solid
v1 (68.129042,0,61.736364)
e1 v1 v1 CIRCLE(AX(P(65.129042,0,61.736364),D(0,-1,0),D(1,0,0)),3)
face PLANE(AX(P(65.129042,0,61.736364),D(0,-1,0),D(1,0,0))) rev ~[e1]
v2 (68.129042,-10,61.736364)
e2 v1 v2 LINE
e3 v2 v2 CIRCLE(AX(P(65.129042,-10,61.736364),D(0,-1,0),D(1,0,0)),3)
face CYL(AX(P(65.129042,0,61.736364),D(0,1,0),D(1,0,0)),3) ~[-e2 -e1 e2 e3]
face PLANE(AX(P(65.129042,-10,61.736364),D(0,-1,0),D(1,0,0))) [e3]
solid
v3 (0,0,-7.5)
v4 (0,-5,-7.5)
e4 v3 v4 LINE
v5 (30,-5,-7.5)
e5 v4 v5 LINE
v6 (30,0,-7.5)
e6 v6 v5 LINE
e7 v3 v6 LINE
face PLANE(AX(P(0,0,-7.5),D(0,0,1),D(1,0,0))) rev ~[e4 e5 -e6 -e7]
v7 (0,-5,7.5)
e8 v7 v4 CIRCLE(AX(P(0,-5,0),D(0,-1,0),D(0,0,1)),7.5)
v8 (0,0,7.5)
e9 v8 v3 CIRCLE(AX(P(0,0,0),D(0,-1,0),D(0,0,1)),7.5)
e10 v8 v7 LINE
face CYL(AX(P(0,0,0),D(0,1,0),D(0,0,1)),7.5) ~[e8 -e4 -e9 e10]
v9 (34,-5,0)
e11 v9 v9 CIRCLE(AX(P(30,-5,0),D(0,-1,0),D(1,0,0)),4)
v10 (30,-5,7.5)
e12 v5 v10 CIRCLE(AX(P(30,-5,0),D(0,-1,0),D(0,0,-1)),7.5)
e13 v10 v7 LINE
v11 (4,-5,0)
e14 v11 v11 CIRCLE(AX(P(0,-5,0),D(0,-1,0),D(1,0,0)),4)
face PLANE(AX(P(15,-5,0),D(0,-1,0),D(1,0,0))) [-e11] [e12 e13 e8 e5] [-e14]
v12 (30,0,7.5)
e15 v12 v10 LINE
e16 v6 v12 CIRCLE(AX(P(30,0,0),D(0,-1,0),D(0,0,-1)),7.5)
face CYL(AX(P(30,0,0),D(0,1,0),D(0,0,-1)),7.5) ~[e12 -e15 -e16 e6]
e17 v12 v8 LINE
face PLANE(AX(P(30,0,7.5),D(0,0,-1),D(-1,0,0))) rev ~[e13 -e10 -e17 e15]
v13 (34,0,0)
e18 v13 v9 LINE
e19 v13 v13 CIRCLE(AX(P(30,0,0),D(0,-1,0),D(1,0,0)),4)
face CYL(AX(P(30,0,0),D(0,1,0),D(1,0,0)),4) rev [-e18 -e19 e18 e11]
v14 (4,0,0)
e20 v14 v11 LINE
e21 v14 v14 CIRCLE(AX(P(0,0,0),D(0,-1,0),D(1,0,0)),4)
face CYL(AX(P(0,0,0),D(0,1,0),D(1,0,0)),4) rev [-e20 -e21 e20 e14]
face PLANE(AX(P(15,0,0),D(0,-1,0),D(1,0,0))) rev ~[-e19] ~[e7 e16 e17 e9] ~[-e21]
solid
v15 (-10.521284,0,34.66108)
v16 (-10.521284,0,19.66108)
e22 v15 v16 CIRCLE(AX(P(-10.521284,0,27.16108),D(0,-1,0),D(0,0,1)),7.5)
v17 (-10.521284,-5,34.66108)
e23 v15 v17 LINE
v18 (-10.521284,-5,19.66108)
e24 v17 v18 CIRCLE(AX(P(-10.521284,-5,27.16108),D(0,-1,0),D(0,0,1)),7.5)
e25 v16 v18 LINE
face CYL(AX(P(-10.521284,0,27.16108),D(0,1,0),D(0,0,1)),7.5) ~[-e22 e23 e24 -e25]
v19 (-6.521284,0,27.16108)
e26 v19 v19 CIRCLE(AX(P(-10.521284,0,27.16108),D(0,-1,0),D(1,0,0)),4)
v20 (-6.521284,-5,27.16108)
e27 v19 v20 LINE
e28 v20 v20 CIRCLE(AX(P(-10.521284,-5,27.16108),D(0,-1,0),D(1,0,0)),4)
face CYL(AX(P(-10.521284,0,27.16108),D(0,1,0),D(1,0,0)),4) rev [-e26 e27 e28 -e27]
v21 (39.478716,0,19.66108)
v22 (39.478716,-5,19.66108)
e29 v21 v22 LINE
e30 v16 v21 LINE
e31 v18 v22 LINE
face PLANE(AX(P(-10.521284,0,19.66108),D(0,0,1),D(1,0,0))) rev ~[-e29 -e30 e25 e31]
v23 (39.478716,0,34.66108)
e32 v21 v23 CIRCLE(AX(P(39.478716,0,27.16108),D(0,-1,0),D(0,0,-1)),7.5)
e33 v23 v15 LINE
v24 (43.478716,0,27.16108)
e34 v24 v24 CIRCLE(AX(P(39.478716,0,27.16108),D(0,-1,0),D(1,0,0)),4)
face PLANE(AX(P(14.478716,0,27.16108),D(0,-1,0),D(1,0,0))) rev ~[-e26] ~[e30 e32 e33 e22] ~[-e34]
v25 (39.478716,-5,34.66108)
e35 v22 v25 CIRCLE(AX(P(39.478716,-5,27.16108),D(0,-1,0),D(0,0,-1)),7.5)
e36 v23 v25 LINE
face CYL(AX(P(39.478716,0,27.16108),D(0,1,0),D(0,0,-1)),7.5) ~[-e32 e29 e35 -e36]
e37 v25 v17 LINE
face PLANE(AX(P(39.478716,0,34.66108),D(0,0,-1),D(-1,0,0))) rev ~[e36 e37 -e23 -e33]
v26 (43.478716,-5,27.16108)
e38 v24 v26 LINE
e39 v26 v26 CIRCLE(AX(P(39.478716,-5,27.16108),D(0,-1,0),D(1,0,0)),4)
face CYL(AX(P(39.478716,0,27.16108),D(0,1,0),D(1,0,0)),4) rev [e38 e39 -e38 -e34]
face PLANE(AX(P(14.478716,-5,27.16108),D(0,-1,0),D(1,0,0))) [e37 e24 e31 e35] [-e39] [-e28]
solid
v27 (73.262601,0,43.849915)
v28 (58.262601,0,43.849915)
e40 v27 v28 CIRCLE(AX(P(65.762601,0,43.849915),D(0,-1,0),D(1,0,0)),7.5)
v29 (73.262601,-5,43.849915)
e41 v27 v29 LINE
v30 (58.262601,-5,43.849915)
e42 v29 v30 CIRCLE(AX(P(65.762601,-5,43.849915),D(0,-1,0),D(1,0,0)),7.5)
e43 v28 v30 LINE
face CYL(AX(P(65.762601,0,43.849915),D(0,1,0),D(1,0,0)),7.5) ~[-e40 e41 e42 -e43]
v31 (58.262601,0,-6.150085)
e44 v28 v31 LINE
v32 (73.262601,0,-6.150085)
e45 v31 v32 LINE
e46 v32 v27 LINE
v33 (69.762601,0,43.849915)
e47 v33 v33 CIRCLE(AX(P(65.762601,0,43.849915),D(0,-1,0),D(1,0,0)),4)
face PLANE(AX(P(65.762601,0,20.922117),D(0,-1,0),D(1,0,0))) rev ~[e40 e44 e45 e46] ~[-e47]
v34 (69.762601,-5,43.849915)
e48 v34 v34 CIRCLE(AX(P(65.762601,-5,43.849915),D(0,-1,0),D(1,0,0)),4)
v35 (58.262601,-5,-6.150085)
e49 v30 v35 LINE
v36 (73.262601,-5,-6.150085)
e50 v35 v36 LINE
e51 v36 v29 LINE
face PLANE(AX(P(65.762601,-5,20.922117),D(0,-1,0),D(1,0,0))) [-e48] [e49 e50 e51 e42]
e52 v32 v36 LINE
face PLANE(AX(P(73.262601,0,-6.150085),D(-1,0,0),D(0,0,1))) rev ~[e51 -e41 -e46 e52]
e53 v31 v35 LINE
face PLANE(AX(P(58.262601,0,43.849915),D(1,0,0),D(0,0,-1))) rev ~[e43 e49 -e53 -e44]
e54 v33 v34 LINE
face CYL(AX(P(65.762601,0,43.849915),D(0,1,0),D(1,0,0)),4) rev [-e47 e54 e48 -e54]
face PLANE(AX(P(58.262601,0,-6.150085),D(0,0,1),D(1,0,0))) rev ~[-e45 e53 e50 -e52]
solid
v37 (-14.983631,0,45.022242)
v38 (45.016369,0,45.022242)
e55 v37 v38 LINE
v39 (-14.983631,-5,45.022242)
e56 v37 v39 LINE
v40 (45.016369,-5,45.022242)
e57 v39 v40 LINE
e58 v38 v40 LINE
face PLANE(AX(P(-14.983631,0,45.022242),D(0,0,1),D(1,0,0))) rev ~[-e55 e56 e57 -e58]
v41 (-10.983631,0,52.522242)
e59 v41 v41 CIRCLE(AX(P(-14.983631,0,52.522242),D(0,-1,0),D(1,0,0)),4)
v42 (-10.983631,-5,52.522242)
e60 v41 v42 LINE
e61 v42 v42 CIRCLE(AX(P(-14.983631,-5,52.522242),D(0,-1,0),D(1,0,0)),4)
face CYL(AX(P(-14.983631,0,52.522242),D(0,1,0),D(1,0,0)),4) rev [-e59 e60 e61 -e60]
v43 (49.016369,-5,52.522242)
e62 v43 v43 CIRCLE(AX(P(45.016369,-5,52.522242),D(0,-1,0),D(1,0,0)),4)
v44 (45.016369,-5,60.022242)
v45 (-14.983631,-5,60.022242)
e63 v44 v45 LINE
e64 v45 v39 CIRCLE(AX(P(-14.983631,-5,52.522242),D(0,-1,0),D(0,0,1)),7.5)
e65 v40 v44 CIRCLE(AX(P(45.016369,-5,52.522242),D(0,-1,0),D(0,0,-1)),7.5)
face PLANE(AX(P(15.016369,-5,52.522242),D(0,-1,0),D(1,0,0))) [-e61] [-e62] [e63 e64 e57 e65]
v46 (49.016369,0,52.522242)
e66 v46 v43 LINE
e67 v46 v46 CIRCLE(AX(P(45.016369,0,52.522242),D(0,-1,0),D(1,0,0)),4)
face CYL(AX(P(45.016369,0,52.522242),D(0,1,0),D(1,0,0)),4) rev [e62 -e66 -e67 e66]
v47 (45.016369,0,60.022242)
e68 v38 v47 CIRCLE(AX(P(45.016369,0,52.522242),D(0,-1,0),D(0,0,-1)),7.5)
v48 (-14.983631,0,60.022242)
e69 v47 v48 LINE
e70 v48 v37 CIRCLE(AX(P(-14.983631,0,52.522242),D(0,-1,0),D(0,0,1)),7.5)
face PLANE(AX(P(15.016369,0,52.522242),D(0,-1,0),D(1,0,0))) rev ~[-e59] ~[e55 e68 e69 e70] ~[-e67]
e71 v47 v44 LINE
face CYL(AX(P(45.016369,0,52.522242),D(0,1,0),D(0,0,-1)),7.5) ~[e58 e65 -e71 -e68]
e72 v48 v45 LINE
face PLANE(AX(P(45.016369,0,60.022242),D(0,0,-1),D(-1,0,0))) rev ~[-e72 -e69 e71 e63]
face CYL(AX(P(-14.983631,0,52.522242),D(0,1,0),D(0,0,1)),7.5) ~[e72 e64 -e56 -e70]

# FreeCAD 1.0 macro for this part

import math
import FreeCAD as App
import Part
import Sketcher
Q = App.Units.Quantity

doc = App.newDocument("Part")
body = doc.addObject("PartDesign::Body", "Body")

# Sketch on XZ plane
sketch1 = doc.addObject("Sketcher::SketchObject", "Sketch")
body.addObject(sketch1)
sketch1.AttachmentSupport = (doc.XZ_Plane, [""])
sketch1.MapMode = "FlatFace"
sketch1.addGeometry([
    Part.LineSegment(App.Vector(30, 7.5, 0), App.Vector(0, 7.5, 0)),  # 0
    Part.ArcOfCircle(Part.Circle(App.Vector(0, 0, 0), App.Vector(0, 0, 1), 7.5), math.radians(90), math.radians(270)),  # 1
    Part.LineSegment(App.Vector(0, -7.5, 0), App.Vector(30, -7.5, 0)),  # 2
    Part.ArcOfCircle(Part.Circle(App.Vector(30, 0, 0), App.Vector(0, 0, 1), 7.5), math.radians(-90), math.radians(90)),  # 3
    Part.Circle(App.Vector(0, 0, 0), App.Vector(0, 0, 1), 4),  # 4
    Part.Circle(App.Vector(30, 0, 0), App.Vector(0, 0, 1), 4),  # 5
], False)
sketch1.addConstraint([
    Sketcher.Constraint("Tangent", 0, 2, 1, 1),
    Sketcher.Constraint("Tangent", 1, 2, 2, 1),
    Sketcher.Constraint("Tangent", 2, 2, 3, 1),
    Sketcher.Constraint("Tangent", 3, 2, 0, 1),
    Sketcher.Constraint("Horizontal", 0),
    Sketcher.Constraint("Horizontal", 2),
    Sketcher.Constraint("Coincident", 1, 3, -1, 1),
    Sketcher.Constraint("Coincident", 4, 3, -1, 1),
    Sketcher.Constraint("Coincident", 5, 3, 3, 3),
    Sketcher.Constraint("Equal", 4, 5),
    Sketcher.Constraint("Diameter", 4, Q("8 mm")),
    Sketcher.Constraint("Radius", 1, Q("7.5 mm")),
    Sketcher.Constraint("DistanceX", 0, 2, 0, 1, Q("30 mm")),
])
pad1 = doc.addObject("PartDesign::Pad", "Pad")
body.addObject(pad1)
pad1.Profile = sketch1
pad1.Length = 5
body2 = doc.addObject("PartDesign::Body", "Body001")

# Sketch on XZ plane
sketch2 = doc.addObject("Sketcher::SketchObject", "Sketch001")
body2.addObject(sketch2)
sketch2.AttachmentSupport = (doc.getObject("XZ_Plane001"), [""])
sketch2.MapMode = "FlatFace"
sketch2.addGeometry([
    Part.LineSegment(App.Vector(39.478716, 34.66108, 0), App.Vector(-10.521284, 34.66108, 0)),  # 0
    Part.ArcOfCircle(Part.Circle(App.Vector(-10.521284, 27.16108, 0), App.Vector(0, 0, 1), 7.5), math.radians(90), math.radians(270)),  # 1
    Part.LineSegment(App.Vector(-10.521284, 19.66108, 0), App.Vector(39.478716, 19.66108, 0)),  # 2
    Part.ArcOfCircle(Part.Circle(App.Vector(39.478716, 27.16108, 0), App.Vector(0, 0, 1), 7.5), math.radians(-90), math.radians(90)),  # 3
    Part.Circle(App.Vector(-10.521284, 27.16108, 0), App.Vector(0, 0, 1), 4),  # 4
    Part.Circle(App.Vector(39.478716, 27.16108, 0), App.Vector(0, 0, 1), 4),  # 5
], False)
sketch2.addConstraint([
    Sketcher.Constraint("Tangent", 0, 2, 1, 1),
    Sketcher.Constraint("Tangent", 1, 2, 2, 1),
    Sketcher.Constraint("Tangent", 2, 2, 3, 1),
    Sketcher.Constraint("Tangent", 3, 2, 0, 1),
    Sketcher.Constraint("Horizontal", 0),
    Sketcher.Constraint("Horizontal", 2),
    Sketcher.Constraint("Coincident", 4, 3, 1, 3),
    Sketcher.Constraint("Coincident", 5, 3, 3, 3),
    Sketcher.Constraint("Equal", 4, 5),
    Sketcher.Constraint("Diameter", 4, Q("8 mm")),
    Sketcher.Constraint("Radius", 1, Q("7.5 mm")),
    Sketcher.Constraint("DistanceX", 0, 2, 0, 1, Q("50 mm")),
    Sketcher.Constraint("DistanceY", -1, 1, 1, 3, Q("27.16108 mm")),
    Sketcher.Constraint("DistanceX", 1, 3, -1, 1, Q("10.521284 mm")),
])
pad2 = doc.addObject("PartDesign::Pad", "Pad001")
body2.addObject(pad2)
pad2.Profile = sketch2
pad2.Length = 5
body3 = doc.addObject("PartDesign::Body", "Body002")

# Sketch on XZ plane
sketch3 = doc.addObject("Sketcher::SketchObject", "Sketch002")
body3.addObject(sketch3)
sketch3.AttachmentSupport = (doc.getObject("XZ_Plane002"), [""])
sketch3.MapMode = "FlatFace"
sketch3.addGeometry([
    Part.LineSegment(App.Vector(45.016369, 60.022242, 0), App.Vector(-14.983631, 60.022242, 0)),  # 0
    Part.ArcOfCircle(Part.Circle(App.Vector(-14.983631, 52.522242, 0), App.Vector(0, 0, 1), 7.5), math.radians(90), math.radians(270)),  # 1
    Part.LineSegment(App.Vector(-14.983631, 45.022242, 0), App.Vector(45.016369, 45.022242, 0)),  # 2
    Part.ArcOfCircle(Part.Circle(App.Vector(45.016369, 52.522242, 0), App.Vector(0, 0, 1), 7.5), math.radians(-90), math.radians(90)),  # 3
    Part.Circle(App.Vector(-14.983631, 52.522242, 0), App.Vector(0, 0, 1), 4),  # 4
    Part.Circle(App.Vector(45.016369, 52.522242, 0), App.Vector(0, 0, 1), 4),  # 5
], False)
sketch3.addConstraint([
    Sketcher.Constraint("Tangent", 0, 2, 1, 1),
    Sketcher.Constraint("Tangent", 1, 2, 2, 1),
    Sketcher.Constraint("Tangent", 2, 2, 3, 1),
    Sketcher.Constraint("Tangent", 3, 2, 0, 1),
    Sketcher.Constraint("Horizontal", 0),
    Sketcher.Constraint("Horizontal", 2),
    Sketcher.Constraint("Coincident", 4, 3, 1, 3),
    Sketcher.Constraint("Coincident", 5, 3, 3, 3),
    Sketcher.Constraint("Equal", 4, 5),
    Sketcher.Constraint("Diameter", 4, Q("8 mm")),
    Sketcher.Constraint("Radius", 1, Q("7.5 mm")),
    Sketcher.Constraint("DistanceX", 0, 2, 0, 1, Q("60 mm")),
    Sketcher.Constraint("DistanceX", 1, 3, -1, 1, Q("14.983631 mm")),
    Sketcher.Constraint("DistanceY", -1, 1, 1, 3, Q("52.522242 mm")),
])
pad3 = doc.addObject("PartDesign::Pad", "Pad002")
body3.addObject(pad3)
pad3.Profile = sketch3
pad3.Length = 5
body4 = doc.addObject("PartDesign::Body", "Body003")

# Sketch on XZ plane
sketch4 = doc.addObject("Sketcher::SketchObject", "Sketch003")
body4.addObject(sketch4)
sketch4.AttachmentSupport = (doc.getObject("XZ_Plane003"), [""])
sketch4.MapMode = "FlatFace"
sketch4.addGeometry([
    Part.LineSegment(App.Vector(58.262601, 43.849915, 0), App.Vector(58.262601, -6.150085, 0)),  # 0
    Part.LineSegment(App.Vector(58.262601, -6.150085, 0), App.Vector(73.262601, -6.150085, 0)),  # 1
    Part.LineSegment(App.Vector(73.262601, -6.150085, 0), App.Vector(73.262601, 43.849915, 0)),  # 2
    Part.ArcOfCircle(Part.Circle(App.Vector(65.762601, 43.849915, 0), App.Vector(0, 0, 1), 7.5), math.radians(0), math.radians(180)),  # 3
    Part.Circle(App.Vector(65.762601, 43.849915, 0), App.Vector(0, 0, 1), 4),  # 4
], False)
sketch4.addConstraint([
    Sketcher.Constraint("Coincident", 0, 2, 1, 1),
    Sketcher.Constraint("Coincident", 1, 2, 2, 1),
    Sketcher.Constraint("Tangent", 2, 2, 3, 1),
    Sketcher.Constraint("Tangent", 3, 2, 0, 1),
    Sketcher.Constraint("Vertical", 0),
    Sketcher.Constraint("Horizontal", 1),
    Sketcher.Constraint("Vertical", 2),
    Sketcher.Constraint("Coincident", 4, 3, 3, 3),
    Sketcher.Constraint("Diameter", 4, Q("8 mm")),
    Sketcher.Constraint("Radius", 3, Q("7.5 mm")),
    Sketcher.Constraint("DistanceY", 0, 2, 0, 1, Q("50 mm")),
    Sketcher.Constraint("DistanceX", -1, 1, 3, 3, Q("65.762601 mm")),
    Sketcher.Constraint("DistanceY", -1, 1, 3, 3, Q("43.849915 mm")),
])
pad4 = doc.addObject("PartDesign::Pad", "Pad003")
body4.addObject(pad4)
pad4.Profile = sketch4
pad4.Length = 5
body5 = doc.addObject("PartDesign::Body", "Body004")

# Sketch on XZ plane
sketch5 = doc.addObject("Sketcher::SketchObject", "Sketch004")
body5.addObject(sketch5)
sketch5.AttachmentSupport = (doc.getObject("XZ_Plane004"), [""])
sketch5.MapMode = "FlatFace"
sketch5.addGeometry(Part.Circle(App.Vector(65.129042, 61.736364, 0), App.Vector(0, 0, 1), 3), False)
sketch5.addConstraint([
    Sketcher.Constraint("Diameter", 0, Q("6 mm")),
    Sketcher.Constraint("DistanceX", -1, 1, 0, 3, Q("65.129042 mm")),
    Sketcher.Constraint("DistanceY", -1, 1, 0, 3, Q("61.736364 mm")),
])
pad5 = doc.addObject("PartDesign::Pad", "Pad004")
body5.addObject(pad5)
pad5.Profile = sketch5
pad5.Length = 10

doc.recompute()
